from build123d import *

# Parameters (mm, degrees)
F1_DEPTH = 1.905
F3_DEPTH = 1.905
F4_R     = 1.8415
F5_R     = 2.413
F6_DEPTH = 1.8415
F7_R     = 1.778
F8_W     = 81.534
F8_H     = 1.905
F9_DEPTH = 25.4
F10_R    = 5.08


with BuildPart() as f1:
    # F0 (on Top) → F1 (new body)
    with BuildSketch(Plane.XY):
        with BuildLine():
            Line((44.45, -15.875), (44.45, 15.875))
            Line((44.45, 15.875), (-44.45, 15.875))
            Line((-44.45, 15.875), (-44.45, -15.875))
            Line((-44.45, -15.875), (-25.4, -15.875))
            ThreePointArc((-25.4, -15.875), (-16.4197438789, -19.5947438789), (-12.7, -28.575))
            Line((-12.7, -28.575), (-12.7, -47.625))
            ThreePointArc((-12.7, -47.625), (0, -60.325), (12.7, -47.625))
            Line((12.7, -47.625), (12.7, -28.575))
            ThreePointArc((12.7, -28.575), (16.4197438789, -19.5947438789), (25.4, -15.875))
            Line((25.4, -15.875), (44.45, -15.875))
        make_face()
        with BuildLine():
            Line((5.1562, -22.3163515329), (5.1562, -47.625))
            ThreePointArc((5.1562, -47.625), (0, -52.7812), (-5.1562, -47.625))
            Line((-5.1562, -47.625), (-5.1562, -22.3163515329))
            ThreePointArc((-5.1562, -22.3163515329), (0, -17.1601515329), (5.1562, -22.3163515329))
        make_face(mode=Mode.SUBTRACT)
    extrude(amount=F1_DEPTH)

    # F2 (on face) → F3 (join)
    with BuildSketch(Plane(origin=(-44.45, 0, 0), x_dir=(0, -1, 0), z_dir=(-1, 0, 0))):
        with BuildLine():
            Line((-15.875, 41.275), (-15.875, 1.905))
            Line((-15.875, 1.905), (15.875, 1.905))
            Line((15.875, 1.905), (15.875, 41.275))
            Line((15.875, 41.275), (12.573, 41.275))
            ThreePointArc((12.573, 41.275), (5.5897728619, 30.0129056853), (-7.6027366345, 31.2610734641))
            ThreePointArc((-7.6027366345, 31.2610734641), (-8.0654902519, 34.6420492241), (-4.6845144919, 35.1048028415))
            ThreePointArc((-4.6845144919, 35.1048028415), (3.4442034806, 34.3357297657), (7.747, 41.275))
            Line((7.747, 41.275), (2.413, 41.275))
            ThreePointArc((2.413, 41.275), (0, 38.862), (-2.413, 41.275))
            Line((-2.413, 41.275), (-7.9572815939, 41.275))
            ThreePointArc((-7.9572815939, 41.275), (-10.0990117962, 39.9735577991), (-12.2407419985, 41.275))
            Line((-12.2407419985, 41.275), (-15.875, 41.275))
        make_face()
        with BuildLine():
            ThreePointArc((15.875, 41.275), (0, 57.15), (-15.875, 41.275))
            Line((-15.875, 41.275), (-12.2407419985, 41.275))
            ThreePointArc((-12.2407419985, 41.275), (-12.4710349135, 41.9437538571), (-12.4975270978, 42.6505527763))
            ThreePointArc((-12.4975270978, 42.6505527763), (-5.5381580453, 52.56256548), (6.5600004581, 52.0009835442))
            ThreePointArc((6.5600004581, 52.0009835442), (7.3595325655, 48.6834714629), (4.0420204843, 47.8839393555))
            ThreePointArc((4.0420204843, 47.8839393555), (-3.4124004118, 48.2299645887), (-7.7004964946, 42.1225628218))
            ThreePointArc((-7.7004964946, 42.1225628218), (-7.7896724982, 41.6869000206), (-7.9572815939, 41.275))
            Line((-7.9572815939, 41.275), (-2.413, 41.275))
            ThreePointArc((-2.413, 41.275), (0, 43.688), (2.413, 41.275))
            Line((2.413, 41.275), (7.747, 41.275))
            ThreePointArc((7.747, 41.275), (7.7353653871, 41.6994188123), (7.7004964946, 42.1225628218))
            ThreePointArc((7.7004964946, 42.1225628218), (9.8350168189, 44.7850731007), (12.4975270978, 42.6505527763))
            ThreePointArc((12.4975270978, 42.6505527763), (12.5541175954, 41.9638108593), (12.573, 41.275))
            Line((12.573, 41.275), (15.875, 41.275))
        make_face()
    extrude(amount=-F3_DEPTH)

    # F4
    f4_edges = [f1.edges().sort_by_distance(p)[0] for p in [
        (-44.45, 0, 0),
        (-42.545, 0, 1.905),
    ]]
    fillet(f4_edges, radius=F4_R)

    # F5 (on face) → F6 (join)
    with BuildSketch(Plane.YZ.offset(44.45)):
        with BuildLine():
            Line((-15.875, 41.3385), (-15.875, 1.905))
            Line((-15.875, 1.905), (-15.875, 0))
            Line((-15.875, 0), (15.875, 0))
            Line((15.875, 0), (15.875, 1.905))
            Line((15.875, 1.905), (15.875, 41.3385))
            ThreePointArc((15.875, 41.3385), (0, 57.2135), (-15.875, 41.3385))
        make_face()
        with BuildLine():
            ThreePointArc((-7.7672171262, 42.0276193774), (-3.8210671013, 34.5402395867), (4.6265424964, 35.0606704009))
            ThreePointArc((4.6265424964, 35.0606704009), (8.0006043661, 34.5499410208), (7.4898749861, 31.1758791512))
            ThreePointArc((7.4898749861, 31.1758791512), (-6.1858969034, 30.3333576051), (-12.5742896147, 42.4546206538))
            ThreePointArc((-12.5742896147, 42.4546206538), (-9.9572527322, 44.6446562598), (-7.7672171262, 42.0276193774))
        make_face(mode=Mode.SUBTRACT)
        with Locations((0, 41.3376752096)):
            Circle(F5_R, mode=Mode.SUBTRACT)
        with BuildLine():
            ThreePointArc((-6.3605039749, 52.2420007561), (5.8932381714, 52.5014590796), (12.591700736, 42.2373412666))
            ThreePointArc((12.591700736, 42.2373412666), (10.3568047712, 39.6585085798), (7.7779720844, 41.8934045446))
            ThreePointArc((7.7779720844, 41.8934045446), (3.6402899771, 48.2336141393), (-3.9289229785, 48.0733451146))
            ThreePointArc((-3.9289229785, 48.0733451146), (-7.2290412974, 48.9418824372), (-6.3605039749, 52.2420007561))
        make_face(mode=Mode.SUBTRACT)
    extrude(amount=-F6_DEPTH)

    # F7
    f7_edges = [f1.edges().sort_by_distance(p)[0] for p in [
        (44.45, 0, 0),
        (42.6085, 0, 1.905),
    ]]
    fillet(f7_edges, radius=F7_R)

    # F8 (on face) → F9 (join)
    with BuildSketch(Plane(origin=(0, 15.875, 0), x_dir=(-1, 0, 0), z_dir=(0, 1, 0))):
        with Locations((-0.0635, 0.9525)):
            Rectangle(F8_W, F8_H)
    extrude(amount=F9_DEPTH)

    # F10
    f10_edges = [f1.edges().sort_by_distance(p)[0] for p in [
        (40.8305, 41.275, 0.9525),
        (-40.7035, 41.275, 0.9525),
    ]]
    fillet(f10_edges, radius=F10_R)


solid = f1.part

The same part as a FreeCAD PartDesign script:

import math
import FreeCAD as App
import Part
import Sketcher
from FreeCAD import Vector
Q = App.Units.Quantity


def edges_at(feature, points):
    """Names of the edges that pass closest to the given points."""
    edges = feature.Shape.Edges
    near = lambda p: min(range(len(edges)), key=lambda i: edges[i].distToShape(Part.Vertex(*p))[0])
    return sorted({f"Edge{near(p) + 1}" for p in points})

doc = App.newDocument("Part")
body = doc.addObject("PartDesign::Body", "Body")

sketch1 = body.newObject("Sketcher::SketchObject", "Sketch")
sketch1.AttachmentSupport = (doc.getObject("XY_Plane"), [""])
sketch1.MapMode = "FlatFace"
sketch1.addGeometry([
    Part.LineSegment(Vector(44, -16, 0), Vector(44, 16, 0)),
    Part.LineSegment(Vector(44, 16, 0), Vector(-44, 16, 0)),
    Part.LineSegment(Vector(-44, 16, 0), Vector(-44, -16, 0)),
    Part.LineSegment(Vector(-44, -16, 0), Vector(-25, -16, 0)),
    Part.ArcOfCircle(Part.Circle(Vector(-25, -29, 0), Vector(0, 0, 1), 13), math.radians(0), math.radians(90)),
    Part.LineSegment(Vector(-13, -29, 0), Vector(-13, -48, 0)),
    Part.ArcOfCircle(Part.Circle(Vector(0, -48, 0), Vector(0, 0, 1), 13), math.radians(180), math.radians(360)),
    Part.LineSegment(Vector(13, -48, 0), Vector(13, -29, 0)),
    Part.ArcOfCircle(Part.Circle(Vector(25, -29, 0), Vector(0, 0, 1), 13), math.radians(90), math.radians(180)),
    Part.LineSegment(Vector(25, -16, 0), Vector(44, -16, 0)),
    Part.ArcOfCircle(Part.Circle(Vector(0, -22, 0), Vector(0, 0, 1), 5), math.radians(0), math.radians(180)),
    Part.LineSegment(Vector(5, -22, 0), Vector(5, -48, 0)),
    Part.ArcOfCircle(Part.Circle(Vector(0, -48, 0), Vector(0, 0, 1), 5), math.radians(180), math.radians(360)),
    Part.LineSegment(Vector(-5, -48, 0), Vector(-5, -22, 0)),
], False)
sketch1.addConstraint([
    Sketcher.Constraint("Coincident", 0, 2, 1, 1),
    Sketcher.Constraint("Coincident", 1, 2, 2, 1),
    Sketcher.Constraint("Coincident", 2, 2, 3, 1),
    Sketcher.Constraint("Tangent", 3, 2, 4, 2),
    Sketcher.Constraint("Tangent", 4, 1, 5, 1),
    Sketcher.Constraint("Tangent", 5, 2, 6, 1),
    Sketcher.Constraint("Tangent", 6, 2, 7, 1),
    Sketcher.Constraint("Tangent", 7, 2, 8, 2),
    Sketcher.Constraint("Tangent", 8, 1, 9, 1),
    Sketcher.Constraint("Coincident", 9, 2, 0, 1),
    Sketcher.Constraint("Tangent", 10, 1, 11, 1),
    Sketcher.Constraint("Tangent", 11, 2, 12, 2),
    Sketcher.Constraint("Tangent", 12, 1, 13, 1),
    Sketcher.Constraint("Tangent", 13, 2, 10, 2),
    Sketcher.Constraint("Vertical", 0),
    Sketcher.Constraint("Horizontal", 1),
    Sketcher.Constraint("Vertical", 2),
    Sketcher.Constraint("Horizontal", 3),
    Sketcher.Constraint("Vertical", 5),
    Sketcher.Constraint("Vertical", 7),
    Sketcher.Constraint("Horizontal", 9),
    Sketcher.Constraint("Vertical", 11),
    Sketcher.Constraint("Vertical", 13),
    Sketcher.Constraint("Coincident", 12, 3, 6, 3),
    Sketcher.Constraint("Equal", 4, 6),
    Sketcher.Constraint("Equal", 6, 8),
    Sketcher.Constraint("Symmetric", 0, 2, 2, 2, -1, 1),
    Sketcher.Constraint("Symmetric", 4, 3, 8, 3, -2),
    Sketcher.Constraint("Equal", 9, 5),
    Sketcher.Constraint("Radius", 4, Q("0.5 in")),
    Sketcher.Constraint("DistanceX", 1, 2, 1, 1, Q("3.5 in")),
    Sketcher.Constraint("Radius", 10, Q("0.203 in")),
    Sketcher.Constraint("DistanceY", 0, 1, 0, 2, Q("1.25 in")),
    Sketcher.Constraint("DistanceY", 11, 2, 11, 1, Q("25.308648 mm")),
])
pad1 = body.newObject("PartDesign::Pad", "Pad")
pad1.Profile = sketch1
pad1.Length = Q("0.075 in")

sketch2 = body.newObject("Sketcher::SketchObject", "Sketch001")
sketch2.AttachmentSupport = (doc.getObject("YZ_Plane"), [""])
sketch2.MapMode = "FlatFace"
sketch2.AttachmentOffset = App.Placement(Vector(0, 0, -1.75 * 25.4), App.Rotation())
sketch2.addGeometry([
    Part.LineSegment(Vector(15.9, 41.3, 0), Vector(15.9, 1.9, 0)),
    Part.LineSegment(Vector(15.9, 1.9, 0), Vector(-15.9, 1.9, 0)),
    Part.LineSegment(Vector(-15.9, 1.9, 0), Vector(-15.9, 41.3, 0)),
    Part.ArcOfCircle(Part.Circle(Vector(0, 41.3, 0), Vector(0, 0, 1), 15.9), math.radians(0), math.radians(180)),
    Part.ArcOfCircle(Part.Circle(Vector(0, 41.3, 0), Vector(0, 0, 1), 12.6), math.radians(180), math.radians(307)),
    Part.ArcOfCircle(Part.Circle(Vector(6.1, 33.2, 0), Vector(0, 0, 1), 2.4), math.radians(-53), math.radians(127)),
    Part.ArcOfCircle(Part.Circle(Vector(0, 41.3, 0), Vector(0, 0, 1), 7.7), math.radians(180), math.radians(307)),
    Part.ArcOfCircle(Part.Circle(Vector(0, 41.3, 0), Vector(0, 0, 1), 7.7), math.radians(173.72), math.radians(180)),
    Part.ArcOfCircle(Part.Circle(Vector(-10.1, 42.4, 0), Vector(0, 0, 1), 2.4), math.radians(-6), math.radians(174)),
    Part.ArcOfCircle(Part.Circle(Vector(0, 41.3, 0), Vector(0, 0, 1), 12.6), math.radians(173.72), math.radians(180)),
    Part.Circle(Vector(0, 41.3, 0), Vector(0, 0, 1), 2.4),
    Part.ArcOfCircle(Part.Circle(Vector(10.1, 42.4, 0), Vector(0, 0, 1), 2.4), math.radians(-153), math.radians(-27)),
    Part.ArcOfCircle(Part.Circle(Vector(10.1, 42.4, 0), Vector(0, 0, 1), 2.4), math.radians(-27), math.radians(6)),
    Part.ArcOfCircle(Part.Circle(Vector(0, 41.3, 0), Vector(0, 0, 1), 12.6), math.radians(6), math.radians(121)),
    Part.ArcOfCircle(Part.Circle(Vector(-5.3, 49.9, 0), Vector(0, 0, 1), 2.4), math.radians(121), math.radians(301)),
    Part.ArcOfCircle(Part.Circle(Vector(0, 41.3, 0), Vector(0, 0, 1), 7.7), math.radians(6), math.radians(121)),
    Part.ArcOfCircle(Part.Circle(Vector(10.1, 42.4, 0), Vector(0, 0, 1), 2.4), math.radians(-174), math.radians(-153)),
], False)
sketch2.addConstraint([
    Sketcher.Constraint("Coincident", 0, 2, 1, 1),
    Sketcher.Constraint("Coincident", 1, 2, 2, 1),
    Sketcher.Constraint("Tangent", 2, 2, 3, 2),
    Sketcher.Constraint("Tangent", 3, 1, 0, 1),
    Sketcher.Constraint("Tangent", 4, 2, 5, 1),
    Sketcher.Constraint("Tangent", 5, 2, 6, 2),
    Sketcher.Constraint("Tangent", 6, 1, 7, 2),
    Sketcher.Constraint("Tangent", 7, 1, 8, 1),
    Sketcher.Constraint("Tangent", 8, 2, 9, 1),
    Sketcher.Constraint("Tangent", 9, 2, 4, 1),
    Sketcher.Constraint("Tangent", 11, 2, 12, 1),
    Sketcher.Constraint("Tangent", 12, 2, 13, 1),
    Sketcher.Constraint("Tangent", 13, 2, 14, 1),
    Sketcher.Constraint("Tangent", 14, 2, 15, 2),
    Sketcher.Constraint("Tangent", 15, 1, 16, 1),
    Sketcher.Constraint("Tangent", 16, 2, 11, 1),
    Sketcher.Constraint("Vertical", 0),
    Sketcher.Constraint("Horizontal", 1),
    Sketcher.Constraint("Vertical", 2),
    Sketcher.Constraint("Coincident", 4, 3, 3, 3),
    Sketcher.Constraint("Coincident", 6, 3, 3, 3),
    Sketcher.Constraint("Coincident", 10, 3, 3, 3),
    Sketcher.Constraint("Coincident", 13, 3, 3, 3),
    Sketcher.Constraint("Coincident", 15, 3, 3, 3),
    Sketcher.Constraint("Equal", 6, 7),
    Sketcher.Constraint("Equal", 4, 9),
    Sketcher.Constraint("Equal", 8, 10),
    Sketcher.Constraint("Equal", 10, 11),
    Sketcher.Constraint("Equal", 11, 12),
    Sketcher.Constraint("Equal", 9, 13),
    Sketcher.Constraint("Equal", 12, 14),
    Sketcher.Constraint("Symmetric", 8, 3, 11, 3, -2),
    Sketcher.Constraint("Horizontal", 3, 1, 6, 1),
    Sketcher.Constraint("Horizontal", 6, 1, 9, 2),
    Sketcher.Constraint("Horizontal", 9, 2, 11, 2),
    Sketcher.Constraint("Horizontal", 11, 2, 16, 2),
    Sketcher.Constraint("Diameter", 10, Q("0.19 in")),
    Sketcher.Constraint("Radius", 3, Q("0.625 in")),
    Sketcher.Constraint("Radius", 4, Q("0.495 in")),
    Sketcher.Constraint("DistanceY", 0, 2, 0, 1, Q("1.55 in")),
    Sketcher.Constraint("DistanceY", -1, 1, 3, 3, Q("1.625 in")),
    Sketcher.Constraint("DistanceX", 13, 2, -1, 1, Q("6.56 mm")),
    Sketcher.Constraint("DistanceX", 8, 3, 14, 3, Q("4.798001 mm")),
    Sketcher.Constraint("DistanceY", -1, 1, 5, 3, Q("33.182938 mm")),
])
pad2 = body.newObject("PartDesign::Pad", "Pad001")
pad2.Profile = sketch2
pad2.Length = Q("0.075 in")
doc.recompute()

fillet = body.newObject("PartDesign::Fillet", "Fillet")
fillet.Base = (pad2, edges_at(pad2, [(-44.45, 0, 0), (-42.545, 0, 1.905)]))
fillet.Radius = Q("0.0725 in")

sketch3 = body.newObject("Sketcher::SketchObject", "Sketch002")
sketch3.AttachmentSupport = (doc.getObject("YZ_Plane"), [""])
sketch3.MapMode = "FlatFace"
sketch3.AttachmentOffset = App.Placement(Vector(0, 0, 1.75 * 25.4), App.Rotation())
sketch3.addGeometry([
    Part.LineSegment(Vector(-15.9, 41.3, 0), Vector(-15.9, 0, 0)),
    Part.LineSegment(Vector(-15.9, 0, 0), Vector(15.9, 0, 0)),
    Part.LineSegment(Vector(15.9, 0, 0), Vector(15.9, 41.3, 0)),
    Part.ArcOfCircle(Part.Circle(Vector(0, 41.3, 0), Vector(0, 0, 1), 15.9), math.radians(0), math.radians(180)),
    Part.ArcOfCircle(Part.Circle(Vector(-10.2, 42.2, 0), Vector(0, 0, 1), 2.4), math.radians(-5), math.radians(175)),
    Part.ArcOfCircle(Part.Circle(Vector(0, 41.3, 0), Vector(0, 0, 1), 7.8), math.radians(175), math.radians(306)),
    Part.ArcOfCircle(Part.Circle(Vector(6.1, 33.1, 0), Vector(0, 0, 1), 2.4), math.radians(-54), math.radians(126)),
    Part.ArcOfCircle(Part.Circle(Vector(0, 41.3, 0), Vector(0, 0, 1), 12.6), math.radians(175), math.radians(306)),
    Part.Circle(Vector(0, 41.3, 0), Vector(0, 0, 1), 2.4),
    Part.ArcOfCircle(Part.Circle(Vector(-5.1, 50.2, 0), Vector(0, 0, 1), 2.4), math.radians(120), math.radians(300)),
    Part.ArcOfCircle(Part.Circle(Vector(0, 41.3, 0), Vector(0, 0, 1), 12.6), math.radians(4), math.radians(120)),
    Part.ArcOfCircle(Part.Circle(Vector(10.2, 42.1, 0), Vector(0, 0, 1), 2.4), math.radians(-176), math.radians(4)),
    Part.ArcOfCircle(Part.Circle(Vector(0, 41.3, 0), Vector(0, 0, 1), 7.8), math.radians(4), math.radians(120)),
], False)
sketch3.addConstraint([
    Sketcher.Constraint("Coincident", 0, 2, 1, 1),
    Sketcher.Constraint("Coincident", 1, 2, 2, 1),
    Sketcher.Constraint("Tangent", 2, 2, 3, 1),
    Sketcher.Constraint("Tangent", 3, 2, 0, 1),
    Sketcher.Constraint("Tangent", 4, 1, 5, 1),
    Sketcher.Constraint("Tangent", 5, 2, 6, 2),
    Sketcher.Constraint("Tangent", 6, 1, 7, 2),
    Sketcher.Constraint("Tangent", 7, 1, 4, 2),
    Sketcher.Constraint("Tangent", 9, 1, 10, 2),
    Sketcher.Constraint("Tangent", 10, 1, 11, 2),
    Sketcher.Constraint("Tangent", 11, 1, 12, 1),
    Sketcher.Constraint("Tangent", 12, 2, 9, 2),
    Sketcher.Constraint("Vertical", 0),
    Sketcher.Constraint("Horizontal", 1),
    Sketcher.Constraint("Vertical", 2),
    Sketcher.Constraint("Coincident", 7, 3, 5, 3),
    Sketcher.Constraint("Coincident", 8, 3, 5, 3),
    Sketcher.Constraint("Coincident", 10, 3, 5, 3),
    Sketcher.Constraint("Coincident", 12, 3, 5, 3),
    Sketcher.Constraint("Equal", 6, 8),
    Sketcher.Constraint("Equal", 8, 9),
    Sketcher.Constraint("Equal", 7, 10),
    Sketcher.Constraint("Symmetric", 0, 2, 1, 2, -1, 1),
    Sketcher.Constraint("PointOnObject", 5, 3, -2),
    Sketcher.Constraint("Diameter", 8, Q("0.19 in")),
    Sketcher.Constraint("Radius", 3, Q("0.625 in")),
    Sketcher.Constraint("Radius", 5, Q("0.307 in")),
    Sketcher.Constraint("DistanceY", 0, 2, 0, 1, Q("1.6275 in")),
    Sketcher.Constraint("DistanceY", -1, 1, 9, 1, Q("52.242001 mm")),
    Sketcher.Constraint("DistanceX", -1, 1, 10, 1, Q("12.591701 mm")),
    Sketcher.Constraint("DistanceY", 6, 3, 5, 3, Q("8.2194 mm")),
    Sketcher.Constraint("DistanceY", 4, 1, 4, 3, Q("0.213501 mm")),
    Sketcher.Constraint("DistanceY", -1, 1, 4, 3, Q("42.24112 mm")),
])
pad3 = body.newObject("PartDesign::Pad", "Pad002")
pad3.Profile = sketch3
pad3.Length = Q("0.0725 in")
pad3.Reversed = True
doc.recompute()

fillet2 = body.newObject("PartDesign::Fillet", "Fillet001")
fillet2.Base = (pad3, edges_at(pad3, [(44.45, 0, 0), (42.608, 0, 1.905)]))
fillet2.Radius = Q("0.07 in")

sketch4 = body.newObject("Sketcher::SketchObject", "Sketch003")
sketch4.AttachmentSupport = (doc.getObject("XZ_Plane"), [""])
sketch4.MapMode = "FlatFace"
sketch4.AttachmentOffset = App.Placement(Vector(0, 0, -0.625 * 25.4), App.Rotation())
sketch4.addGeometry([
    Part.LineSegment(Vector(40.8, 1.9, 0), Vector(40.8, 0, 0)),
    Part.LineSegment(Vector(40.8, 0, 0), Vector(-40.7, 0, 0)),
    Part.LineSegment(Vector(-40.7, 0, 0), Vector(-40.7, 1.9, 0)),
    Part.LineSegment(Vector(-40.7, 1.9, 0), Vector(40.8, 1.9, 0)),
], False)
sketch4.addConstraint([
    Sketcher.Constraint("Coincident", 0, 2, 1, 1),
    Sketcher.Constraint("Coincident", 1, 2, 2, 1),
    Sketcher.Constraint("Coincident", 2, 2, 3, 1),
    Sketcher.Constraint("Coincident", 3, 2, 0, 1),
    Sketcher.Constraint("Vertical", 0),
    Sketcher.Constraint("Horizontal", 1),
    Sketcher.Constraint("Vertical", 2),
    Sketcher.Constraint("Horizontal", 3),
    Sketcher.Constraint("PointOnObject", 0, 2, -1),
    Sketcher.Constraint("DistanceX", 1, 2, 1, 1, Q("3.21 in")),
    Sketcher.Constraint("DistanceY", 0, 2, 0, 1, Q("0.075 in")),
    Sketcher.Constraint("DistanceX", -1, 1, 0, 2, Q("1.6075 in")),
])
pad4 = body.newObject("PartDesign::Pad", "Pad003")
pad4.Profile = sketch4
pad4.Length = Q("1 in")
pad4.Reversed = True
doc.recompute()

fillet3 = body.newObject("PartDesign::Fillet", "Fillet002")
fillet3.Base = (pad4, edges_at(pad4, [(40.831, 41.275, 0.953), (-40.703, 41.275, 0.953)]))
fillet3.Radius = Q("0.2 in")

doc.recompute()
